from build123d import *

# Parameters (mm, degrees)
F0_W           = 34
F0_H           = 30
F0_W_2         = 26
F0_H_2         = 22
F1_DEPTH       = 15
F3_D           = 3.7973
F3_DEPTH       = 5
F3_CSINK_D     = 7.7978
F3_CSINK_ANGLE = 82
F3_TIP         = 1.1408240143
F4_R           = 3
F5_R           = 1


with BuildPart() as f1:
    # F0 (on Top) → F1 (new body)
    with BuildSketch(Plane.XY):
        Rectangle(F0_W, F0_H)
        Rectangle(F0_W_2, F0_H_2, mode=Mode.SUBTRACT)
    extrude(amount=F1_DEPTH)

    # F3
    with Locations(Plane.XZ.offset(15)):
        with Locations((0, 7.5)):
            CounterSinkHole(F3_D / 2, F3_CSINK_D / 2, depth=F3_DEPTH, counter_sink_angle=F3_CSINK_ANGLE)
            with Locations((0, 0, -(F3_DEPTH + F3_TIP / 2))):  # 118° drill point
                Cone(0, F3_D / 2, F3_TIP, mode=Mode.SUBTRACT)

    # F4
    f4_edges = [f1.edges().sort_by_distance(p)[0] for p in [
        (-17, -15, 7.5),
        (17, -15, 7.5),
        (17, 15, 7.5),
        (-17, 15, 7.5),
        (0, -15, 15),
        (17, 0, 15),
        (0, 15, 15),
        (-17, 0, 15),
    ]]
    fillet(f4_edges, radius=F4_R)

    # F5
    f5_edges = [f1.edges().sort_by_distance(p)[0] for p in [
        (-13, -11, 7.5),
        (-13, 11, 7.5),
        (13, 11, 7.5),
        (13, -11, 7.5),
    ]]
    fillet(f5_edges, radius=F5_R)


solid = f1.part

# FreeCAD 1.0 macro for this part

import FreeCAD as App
import Part
import Sketcher


def edges_at(feature, points):
    """Names of the edges that pass closest to the given points."""
    edges = feature.Shape.Edges
    near = lambda p: min(range(len(edges)), key=lambda i: edges[i].distToShape(Part.Vertex(*p))[0])
    return sorted({f"Edge{near(p) + 1}" for p in points})


def add_polygon(sketch, points):
    """Adds a closed chain of lines whose ends are joined by coincident constraints."""
    first, n = sketch.GeometryCount, len(points)
    for a, b in zip(points, points[1:] + points[:1]):
        sketch.addGeometry(Part.LineSegment(App.Vector(*a, 0), App.Vector(*b, 0)), False)
    for i in range(n):
        sketch.addConstraint(Sketcher.Constraint("Coincident", first + i, 2, first + (i + 1) % n, 1))

doc = App.newDocument("Part")
params = doc.addObject("Spreadsheet::Sheet", "Params")
for row, (alias, value) in enumerate([
    ("sketch1_width", "34 mm"),
    ("sketch1_width2", "26 mm"),
    ("sketch1_height", "30 mm"),
    ("sketch1_height2", "22 mm"),
    ("pad1_length", "15 mm"),
    ("hole_diameter", "3.7973 mm"),
    ("hole_depth", "5 mm"),
    ("hole_csink_diameter", "7.7978 mm"),
    ("fillet_radius", "3 mm"),
    ("fillet2_radius", "1 mm"),
], start=1):
    params.set(f"A{row}", alias)
    params.set(f"B{row}", "=" + value)
    params.setAlias(f"B{row}", alias)

body = doc.addObject("PartDesign::Body", "Body")

# Sketch on XY plane
sketch1 = body.newObject("Sketcher::SketchObject", "Sketch")
sketch1.AttachmentSupport = (doc.getObject("XY_Plane"), [""])
sketch1.MapMode = "FlatFace"
add_polygon(sketch1, [(-17, 15), (-17, -15), (17, -15), (17, 15)])  # lines 0-3
add_polygon(sketch1, [(13, -11), (-13, -11), (-13, 11), (13, 11)])  # lines 4-7
sketch1.addConstraint([
    Sketcher.Constraint("Vertical", 0),
    Sketcher.Constraint("Horizontal", 1),
    Sketcher.Constraint("Vertical", 2),
    Sketcher.Constraint("Horizontal", 3),
    Sketcher.Constraint("Horizontal", 4),
    Sketcher.Constraint("Vertical", 5),
    Sketcher.Constraint("Horizontal", 6),
    Sketcher.Constraint("Vertical", 7),
    Sketcher.Constraint("Symmetric", 0, 2, 2, 2, -1, 1),
    Sketcher.Constraint("Symmetric", 4, 2, 6, 2, -1, 1),
    Sketcher.Constraint("DistanceX", 1, 1, 1, 2, 34.0),
    Sketcher.Constraint("DistanceX", 4, 2, 4, 1, 26.0),
    Sketcher.Constraint("DistanceY", 0, 2, 0, 1, 30.0),
    Sketcher.Constraint("DistanceY", 5, 1, 5, 2, 22.0),
])
sketch1.setExpression("Constraints[18]", "Params.sketch1_width")
sketch1.setExpression("Constraints[19]", "Params.sketch1_width2")
sketch1.setExpression("Constraints[20]", "Params.sketch1_height")
sketch1.setExpression("Constraints[21]", "Params.sketch1_height2")
pad1 = body.newObject("PartDesign::Pad", "Pad")
pad1.Profile = sketch1
pad1.setExpression("Length", "Params.pad1_length")

# Sketch on XZ plane
sketch2 = body.newObject("Sketcher::SketchObject", "Sketch001")
sketch2.AttachmentSupport = (doc.getObject("XZ_Plane"), [""])
sketch2.MapMode = "FlatFace"
sketch2.AttachmentOffset = App.Placement(App.Vector(0, 0, 15), App.Rotation())
sketch2.addGeometry(Part.Circle(App.Vector(0, 7.5, 0), App.Vector(0, 0, 1), 1.9), False)
sketch2.addConstraint([
    Sketcher.Constraint("PointOnObject", 0, 3, -2),
    Sketcher.Constraint("Diameter", 0, 3.7973),
    Sketcher.Constraint("DistanceY", -1, 1, 0, 3, 7.5),
])
doc.recompute()
hole = body.newObject("PartDesign::Hole", "Hole")
hole.Profile = sketch2
hole.ThreadType = "None"
hole.setExpression("Diameter", "Params.hole_diameter")
hole.DepthType = "Dimension"
hole.setExpression("Depth", "Params.hole_depth")
hole.DrillPoint = "Angled"
hole.DrillPointAngle = 118
hole.HoleCutType = "Countersink"
hole.setExpression("HoleCutDiameter", "Params.hole_csink_diameter")
hole.HoleCutCountersinkAngle = 82
doc.recompute()

fillet = body.newObject("PartDesign::Fillet", "Fillet")
fillet.Base = (hole, edges_at(hole, [
    (-17, -15, 7.5),
    (17, -15, 7.5),
    (17, 15, 7.5),
    (-17, 15, 7.5),
    (0, -15, 15),
    (17, 0, 15),
    (0, 15, 15),
    (-17, 0, 15),
]))
fillet.setExpression("Radius", "Params.fillet_radius")
doc.recompute()

fillet2 = body.newObject("PartDesign::Fillet", "Fillet001")
fillet2.Base = (fillet, edges_at(fillet, [
    (-13, -11, 7.5),
    (-13, 11, 7.5),
    (13, 11, 7.5),
    (13, -11, 7.5),
]))
fillet2.setExpression("Radius", "Params.fillet2_radius")

doc.recompute()
